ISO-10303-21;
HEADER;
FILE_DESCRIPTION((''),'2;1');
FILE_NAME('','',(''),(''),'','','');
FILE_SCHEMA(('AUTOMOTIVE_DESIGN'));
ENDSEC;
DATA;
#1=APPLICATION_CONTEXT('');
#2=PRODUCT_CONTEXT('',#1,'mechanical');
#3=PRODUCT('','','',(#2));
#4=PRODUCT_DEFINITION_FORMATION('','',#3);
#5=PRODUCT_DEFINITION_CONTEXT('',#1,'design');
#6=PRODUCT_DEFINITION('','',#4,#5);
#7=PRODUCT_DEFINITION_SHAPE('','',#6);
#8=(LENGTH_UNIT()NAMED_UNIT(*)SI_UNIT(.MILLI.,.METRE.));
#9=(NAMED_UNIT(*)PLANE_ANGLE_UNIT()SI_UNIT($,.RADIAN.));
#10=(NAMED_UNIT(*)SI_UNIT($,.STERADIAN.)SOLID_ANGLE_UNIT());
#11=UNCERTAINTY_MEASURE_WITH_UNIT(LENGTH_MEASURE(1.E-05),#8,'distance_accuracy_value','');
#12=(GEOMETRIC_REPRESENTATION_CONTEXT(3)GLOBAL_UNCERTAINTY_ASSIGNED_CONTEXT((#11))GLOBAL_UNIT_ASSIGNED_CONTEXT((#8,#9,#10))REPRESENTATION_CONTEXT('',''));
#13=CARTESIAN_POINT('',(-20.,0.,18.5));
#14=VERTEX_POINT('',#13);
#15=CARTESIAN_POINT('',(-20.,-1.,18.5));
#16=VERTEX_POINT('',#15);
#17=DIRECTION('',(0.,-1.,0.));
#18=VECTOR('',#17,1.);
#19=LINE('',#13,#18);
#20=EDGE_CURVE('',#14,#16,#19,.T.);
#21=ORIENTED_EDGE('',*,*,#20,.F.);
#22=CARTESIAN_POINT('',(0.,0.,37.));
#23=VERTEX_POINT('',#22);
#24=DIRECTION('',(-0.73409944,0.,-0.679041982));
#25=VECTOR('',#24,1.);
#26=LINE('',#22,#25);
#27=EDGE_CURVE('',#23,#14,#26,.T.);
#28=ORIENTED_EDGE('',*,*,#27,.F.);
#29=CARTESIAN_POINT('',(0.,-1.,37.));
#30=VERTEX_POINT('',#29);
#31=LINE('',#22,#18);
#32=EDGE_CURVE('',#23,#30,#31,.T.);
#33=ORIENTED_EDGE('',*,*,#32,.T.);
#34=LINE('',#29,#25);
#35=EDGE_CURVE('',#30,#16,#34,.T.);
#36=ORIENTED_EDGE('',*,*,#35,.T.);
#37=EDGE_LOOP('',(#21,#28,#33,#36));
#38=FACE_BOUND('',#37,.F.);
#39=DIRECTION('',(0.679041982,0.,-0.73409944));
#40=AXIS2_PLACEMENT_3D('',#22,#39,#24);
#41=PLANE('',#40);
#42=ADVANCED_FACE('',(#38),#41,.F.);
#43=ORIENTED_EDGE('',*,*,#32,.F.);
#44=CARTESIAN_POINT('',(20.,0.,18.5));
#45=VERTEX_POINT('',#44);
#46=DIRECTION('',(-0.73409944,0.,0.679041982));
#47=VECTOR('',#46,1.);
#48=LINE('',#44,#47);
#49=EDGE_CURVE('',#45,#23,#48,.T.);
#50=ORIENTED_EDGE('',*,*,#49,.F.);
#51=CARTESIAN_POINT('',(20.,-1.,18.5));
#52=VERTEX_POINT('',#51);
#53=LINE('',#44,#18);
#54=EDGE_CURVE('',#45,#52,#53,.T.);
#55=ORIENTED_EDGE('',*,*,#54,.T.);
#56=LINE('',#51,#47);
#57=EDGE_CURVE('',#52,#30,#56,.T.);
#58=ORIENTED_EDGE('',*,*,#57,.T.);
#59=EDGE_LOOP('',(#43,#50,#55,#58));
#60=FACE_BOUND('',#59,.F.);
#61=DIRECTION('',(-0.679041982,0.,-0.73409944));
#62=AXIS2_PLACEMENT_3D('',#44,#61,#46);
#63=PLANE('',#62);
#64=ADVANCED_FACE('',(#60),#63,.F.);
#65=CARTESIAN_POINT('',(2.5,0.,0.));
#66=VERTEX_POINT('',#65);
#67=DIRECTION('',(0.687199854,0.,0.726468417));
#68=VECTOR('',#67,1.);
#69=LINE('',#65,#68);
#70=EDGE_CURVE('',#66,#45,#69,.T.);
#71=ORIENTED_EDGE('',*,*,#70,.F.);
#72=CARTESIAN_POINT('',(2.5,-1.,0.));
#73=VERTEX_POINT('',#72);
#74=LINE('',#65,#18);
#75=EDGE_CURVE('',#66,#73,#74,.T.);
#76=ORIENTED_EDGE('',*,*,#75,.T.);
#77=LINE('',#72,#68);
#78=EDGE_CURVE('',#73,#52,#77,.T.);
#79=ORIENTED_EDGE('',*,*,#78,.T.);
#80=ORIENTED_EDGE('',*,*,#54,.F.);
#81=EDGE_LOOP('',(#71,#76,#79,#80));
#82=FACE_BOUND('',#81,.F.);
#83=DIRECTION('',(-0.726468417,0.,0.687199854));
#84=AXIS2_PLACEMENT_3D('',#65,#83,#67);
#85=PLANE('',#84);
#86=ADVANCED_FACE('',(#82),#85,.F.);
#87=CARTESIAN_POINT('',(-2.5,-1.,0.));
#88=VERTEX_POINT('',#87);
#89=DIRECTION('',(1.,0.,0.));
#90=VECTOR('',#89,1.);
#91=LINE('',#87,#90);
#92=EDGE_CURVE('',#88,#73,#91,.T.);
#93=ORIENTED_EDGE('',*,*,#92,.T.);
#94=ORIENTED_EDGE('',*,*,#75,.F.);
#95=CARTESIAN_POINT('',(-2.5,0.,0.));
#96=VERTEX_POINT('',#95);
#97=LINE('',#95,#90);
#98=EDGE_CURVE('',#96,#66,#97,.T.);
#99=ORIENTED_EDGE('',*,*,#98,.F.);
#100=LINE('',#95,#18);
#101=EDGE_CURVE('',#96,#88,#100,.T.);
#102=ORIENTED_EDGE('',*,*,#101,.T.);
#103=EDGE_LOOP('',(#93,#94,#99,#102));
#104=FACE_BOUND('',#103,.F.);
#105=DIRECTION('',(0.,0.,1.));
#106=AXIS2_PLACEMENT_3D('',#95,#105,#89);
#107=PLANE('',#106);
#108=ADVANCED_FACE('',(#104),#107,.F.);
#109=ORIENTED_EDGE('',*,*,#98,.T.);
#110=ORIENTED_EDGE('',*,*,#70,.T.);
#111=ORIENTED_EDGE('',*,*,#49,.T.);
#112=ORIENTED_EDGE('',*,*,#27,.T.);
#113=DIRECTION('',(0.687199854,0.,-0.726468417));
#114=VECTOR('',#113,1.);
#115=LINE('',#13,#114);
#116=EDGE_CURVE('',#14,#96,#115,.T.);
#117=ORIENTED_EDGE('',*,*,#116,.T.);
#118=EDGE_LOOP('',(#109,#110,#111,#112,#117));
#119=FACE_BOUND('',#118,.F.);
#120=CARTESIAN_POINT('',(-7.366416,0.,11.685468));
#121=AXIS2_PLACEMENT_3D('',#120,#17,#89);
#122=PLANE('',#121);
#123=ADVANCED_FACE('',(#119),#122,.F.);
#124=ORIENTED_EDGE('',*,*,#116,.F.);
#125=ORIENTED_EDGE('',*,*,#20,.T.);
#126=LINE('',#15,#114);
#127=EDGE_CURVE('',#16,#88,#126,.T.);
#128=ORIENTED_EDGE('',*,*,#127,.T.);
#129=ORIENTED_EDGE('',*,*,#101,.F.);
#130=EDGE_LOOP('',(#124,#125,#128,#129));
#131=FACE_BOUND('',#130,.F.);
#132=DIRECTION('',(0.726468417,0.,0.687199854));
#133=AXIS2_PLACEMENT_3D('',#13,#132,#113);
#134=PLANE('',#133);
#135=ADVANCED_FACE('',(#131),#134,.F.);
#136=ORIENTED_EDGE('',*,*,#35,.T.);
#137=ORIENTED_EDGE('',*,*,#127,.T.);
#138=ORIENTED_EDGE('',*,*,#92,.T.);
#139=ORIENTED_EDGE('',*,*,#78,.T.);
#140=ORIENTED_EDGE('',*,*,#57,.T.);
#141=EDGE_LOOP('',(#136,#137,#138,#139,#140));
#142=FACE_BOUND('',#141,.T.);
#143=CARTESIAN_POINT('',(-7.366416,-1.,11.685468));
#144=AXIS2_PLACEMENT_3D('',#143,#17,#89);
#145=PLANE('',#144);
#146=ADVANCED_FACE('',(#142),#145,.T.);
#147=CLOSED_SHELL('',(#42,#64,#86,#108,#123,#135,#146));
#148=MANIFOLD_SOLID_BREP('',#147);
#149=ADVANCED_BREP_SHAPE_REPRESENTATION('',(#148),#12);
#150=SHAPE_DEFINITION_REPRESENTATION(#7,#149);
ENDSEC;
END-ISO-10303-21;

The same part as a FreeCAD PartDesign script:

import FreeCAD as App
import Part
import Sketcher
from FreeCAD import Vector

doc = App.newDocument("Part")
params = doc.addObject("Spreadsheet::Sheet", "Params")
for row, (alias, value) in enumerate([
    ("sketch1_width", "5 mm"),
    ("pad1_length", "1 mm"),
], start=1):
    params.set(f"A{row}", alias)
    params.set(f"B{row}", "=" + value)
    params.setAlias(f"B{row}", alias)

body = doc.addObject("PartDesign::Body", "Body")

# Sketch on XZ plane
sketch1 = doc.addObject("Sketcher::SketchObject", "Sketch")
body.addObject(sketch1)
sketch1.AttachmentSupport = (doc.XZ_Plane, [""])
sketch1.MapMode = "FlatFace"
sketch1.addGeometry(Part.LineSegment(Vector(-2.5, 0, 0), Vector(2.5, 0, 0)), False)
sketch1.addGeometry(Part.LineSegment(Vector(2.5, 0, 0), Vector(20, 18.5, 0)), False)
sketch1.addGeometry(Part.LineSegment(Vector(20, 18.5, 0), Vector(0, 37, 0)), False)
sketch1.addGeometry(Part.LineSegment(Vector(0, 37, 0), Vector(-20, 18.5, 0)), False)
sketch1.addGeometry(Part.LineSegment(Vector(-20, 18.5, 0), Vector(-2.5, 0, 0)), False)
sketch1.addConstraint(Sketcher.Constraint("Coincident", 0, 2, 1, 1))
sketch1.addConstraint(Sketcher.Constraint("Coincident", 1, 2, 2, 1))
sketch1.addConstraint(Sketcher.Constraint("Coincident", 2, 2, 3, 1))
sketch1.addConstraint(Sketcher.Constraint("Coincident", 3, 2, 4, 1))
sketch1.addConstraint(Sketcher.Constraint("Coincident", 4, 2, 0, 1))
sketch1.addConstraint(Sketcher.Constraint("Horizontal", 0))
sketch1.addConstraint(Sketcher.Constraint("Symmetric", 0, 2, 4, 2, -1, 1))
sketch1.addConstraint(Sketcher.Constraint("Symmetric", 1, 2, 3, 2, -2))
sketch1.addConstraint(Sketcher.Constraint("PointOnObject", 2, 2, -2))
sketch1.addConstraint(Sketcher.Constraint("DistanceX", 0, 1, 0, 2, 5.0))
sketch1.addConstraint(Sketcher.Constraint("DistanceX", -1, 1, 1, 2, 20.0))
sketch1.addConstraint(Sketcher.Constraint("DistanceY", -1, 1, 2, 2, 37.0))
sketch1.addConstraint(Sketcher.Constraint("DistanceY", -1, 1, 1, 2, 18.5))
sketch1.setExpression("Constraints[9]", "Params.sketch1_width")
pad1 = doc.addObject("PartDesign::Pad", "Pad")
body.addObject(pad1)
pad1.Profile = sketch1
pad1.setExpression("Length", "Params.pad1_length")

doc.recompute()
